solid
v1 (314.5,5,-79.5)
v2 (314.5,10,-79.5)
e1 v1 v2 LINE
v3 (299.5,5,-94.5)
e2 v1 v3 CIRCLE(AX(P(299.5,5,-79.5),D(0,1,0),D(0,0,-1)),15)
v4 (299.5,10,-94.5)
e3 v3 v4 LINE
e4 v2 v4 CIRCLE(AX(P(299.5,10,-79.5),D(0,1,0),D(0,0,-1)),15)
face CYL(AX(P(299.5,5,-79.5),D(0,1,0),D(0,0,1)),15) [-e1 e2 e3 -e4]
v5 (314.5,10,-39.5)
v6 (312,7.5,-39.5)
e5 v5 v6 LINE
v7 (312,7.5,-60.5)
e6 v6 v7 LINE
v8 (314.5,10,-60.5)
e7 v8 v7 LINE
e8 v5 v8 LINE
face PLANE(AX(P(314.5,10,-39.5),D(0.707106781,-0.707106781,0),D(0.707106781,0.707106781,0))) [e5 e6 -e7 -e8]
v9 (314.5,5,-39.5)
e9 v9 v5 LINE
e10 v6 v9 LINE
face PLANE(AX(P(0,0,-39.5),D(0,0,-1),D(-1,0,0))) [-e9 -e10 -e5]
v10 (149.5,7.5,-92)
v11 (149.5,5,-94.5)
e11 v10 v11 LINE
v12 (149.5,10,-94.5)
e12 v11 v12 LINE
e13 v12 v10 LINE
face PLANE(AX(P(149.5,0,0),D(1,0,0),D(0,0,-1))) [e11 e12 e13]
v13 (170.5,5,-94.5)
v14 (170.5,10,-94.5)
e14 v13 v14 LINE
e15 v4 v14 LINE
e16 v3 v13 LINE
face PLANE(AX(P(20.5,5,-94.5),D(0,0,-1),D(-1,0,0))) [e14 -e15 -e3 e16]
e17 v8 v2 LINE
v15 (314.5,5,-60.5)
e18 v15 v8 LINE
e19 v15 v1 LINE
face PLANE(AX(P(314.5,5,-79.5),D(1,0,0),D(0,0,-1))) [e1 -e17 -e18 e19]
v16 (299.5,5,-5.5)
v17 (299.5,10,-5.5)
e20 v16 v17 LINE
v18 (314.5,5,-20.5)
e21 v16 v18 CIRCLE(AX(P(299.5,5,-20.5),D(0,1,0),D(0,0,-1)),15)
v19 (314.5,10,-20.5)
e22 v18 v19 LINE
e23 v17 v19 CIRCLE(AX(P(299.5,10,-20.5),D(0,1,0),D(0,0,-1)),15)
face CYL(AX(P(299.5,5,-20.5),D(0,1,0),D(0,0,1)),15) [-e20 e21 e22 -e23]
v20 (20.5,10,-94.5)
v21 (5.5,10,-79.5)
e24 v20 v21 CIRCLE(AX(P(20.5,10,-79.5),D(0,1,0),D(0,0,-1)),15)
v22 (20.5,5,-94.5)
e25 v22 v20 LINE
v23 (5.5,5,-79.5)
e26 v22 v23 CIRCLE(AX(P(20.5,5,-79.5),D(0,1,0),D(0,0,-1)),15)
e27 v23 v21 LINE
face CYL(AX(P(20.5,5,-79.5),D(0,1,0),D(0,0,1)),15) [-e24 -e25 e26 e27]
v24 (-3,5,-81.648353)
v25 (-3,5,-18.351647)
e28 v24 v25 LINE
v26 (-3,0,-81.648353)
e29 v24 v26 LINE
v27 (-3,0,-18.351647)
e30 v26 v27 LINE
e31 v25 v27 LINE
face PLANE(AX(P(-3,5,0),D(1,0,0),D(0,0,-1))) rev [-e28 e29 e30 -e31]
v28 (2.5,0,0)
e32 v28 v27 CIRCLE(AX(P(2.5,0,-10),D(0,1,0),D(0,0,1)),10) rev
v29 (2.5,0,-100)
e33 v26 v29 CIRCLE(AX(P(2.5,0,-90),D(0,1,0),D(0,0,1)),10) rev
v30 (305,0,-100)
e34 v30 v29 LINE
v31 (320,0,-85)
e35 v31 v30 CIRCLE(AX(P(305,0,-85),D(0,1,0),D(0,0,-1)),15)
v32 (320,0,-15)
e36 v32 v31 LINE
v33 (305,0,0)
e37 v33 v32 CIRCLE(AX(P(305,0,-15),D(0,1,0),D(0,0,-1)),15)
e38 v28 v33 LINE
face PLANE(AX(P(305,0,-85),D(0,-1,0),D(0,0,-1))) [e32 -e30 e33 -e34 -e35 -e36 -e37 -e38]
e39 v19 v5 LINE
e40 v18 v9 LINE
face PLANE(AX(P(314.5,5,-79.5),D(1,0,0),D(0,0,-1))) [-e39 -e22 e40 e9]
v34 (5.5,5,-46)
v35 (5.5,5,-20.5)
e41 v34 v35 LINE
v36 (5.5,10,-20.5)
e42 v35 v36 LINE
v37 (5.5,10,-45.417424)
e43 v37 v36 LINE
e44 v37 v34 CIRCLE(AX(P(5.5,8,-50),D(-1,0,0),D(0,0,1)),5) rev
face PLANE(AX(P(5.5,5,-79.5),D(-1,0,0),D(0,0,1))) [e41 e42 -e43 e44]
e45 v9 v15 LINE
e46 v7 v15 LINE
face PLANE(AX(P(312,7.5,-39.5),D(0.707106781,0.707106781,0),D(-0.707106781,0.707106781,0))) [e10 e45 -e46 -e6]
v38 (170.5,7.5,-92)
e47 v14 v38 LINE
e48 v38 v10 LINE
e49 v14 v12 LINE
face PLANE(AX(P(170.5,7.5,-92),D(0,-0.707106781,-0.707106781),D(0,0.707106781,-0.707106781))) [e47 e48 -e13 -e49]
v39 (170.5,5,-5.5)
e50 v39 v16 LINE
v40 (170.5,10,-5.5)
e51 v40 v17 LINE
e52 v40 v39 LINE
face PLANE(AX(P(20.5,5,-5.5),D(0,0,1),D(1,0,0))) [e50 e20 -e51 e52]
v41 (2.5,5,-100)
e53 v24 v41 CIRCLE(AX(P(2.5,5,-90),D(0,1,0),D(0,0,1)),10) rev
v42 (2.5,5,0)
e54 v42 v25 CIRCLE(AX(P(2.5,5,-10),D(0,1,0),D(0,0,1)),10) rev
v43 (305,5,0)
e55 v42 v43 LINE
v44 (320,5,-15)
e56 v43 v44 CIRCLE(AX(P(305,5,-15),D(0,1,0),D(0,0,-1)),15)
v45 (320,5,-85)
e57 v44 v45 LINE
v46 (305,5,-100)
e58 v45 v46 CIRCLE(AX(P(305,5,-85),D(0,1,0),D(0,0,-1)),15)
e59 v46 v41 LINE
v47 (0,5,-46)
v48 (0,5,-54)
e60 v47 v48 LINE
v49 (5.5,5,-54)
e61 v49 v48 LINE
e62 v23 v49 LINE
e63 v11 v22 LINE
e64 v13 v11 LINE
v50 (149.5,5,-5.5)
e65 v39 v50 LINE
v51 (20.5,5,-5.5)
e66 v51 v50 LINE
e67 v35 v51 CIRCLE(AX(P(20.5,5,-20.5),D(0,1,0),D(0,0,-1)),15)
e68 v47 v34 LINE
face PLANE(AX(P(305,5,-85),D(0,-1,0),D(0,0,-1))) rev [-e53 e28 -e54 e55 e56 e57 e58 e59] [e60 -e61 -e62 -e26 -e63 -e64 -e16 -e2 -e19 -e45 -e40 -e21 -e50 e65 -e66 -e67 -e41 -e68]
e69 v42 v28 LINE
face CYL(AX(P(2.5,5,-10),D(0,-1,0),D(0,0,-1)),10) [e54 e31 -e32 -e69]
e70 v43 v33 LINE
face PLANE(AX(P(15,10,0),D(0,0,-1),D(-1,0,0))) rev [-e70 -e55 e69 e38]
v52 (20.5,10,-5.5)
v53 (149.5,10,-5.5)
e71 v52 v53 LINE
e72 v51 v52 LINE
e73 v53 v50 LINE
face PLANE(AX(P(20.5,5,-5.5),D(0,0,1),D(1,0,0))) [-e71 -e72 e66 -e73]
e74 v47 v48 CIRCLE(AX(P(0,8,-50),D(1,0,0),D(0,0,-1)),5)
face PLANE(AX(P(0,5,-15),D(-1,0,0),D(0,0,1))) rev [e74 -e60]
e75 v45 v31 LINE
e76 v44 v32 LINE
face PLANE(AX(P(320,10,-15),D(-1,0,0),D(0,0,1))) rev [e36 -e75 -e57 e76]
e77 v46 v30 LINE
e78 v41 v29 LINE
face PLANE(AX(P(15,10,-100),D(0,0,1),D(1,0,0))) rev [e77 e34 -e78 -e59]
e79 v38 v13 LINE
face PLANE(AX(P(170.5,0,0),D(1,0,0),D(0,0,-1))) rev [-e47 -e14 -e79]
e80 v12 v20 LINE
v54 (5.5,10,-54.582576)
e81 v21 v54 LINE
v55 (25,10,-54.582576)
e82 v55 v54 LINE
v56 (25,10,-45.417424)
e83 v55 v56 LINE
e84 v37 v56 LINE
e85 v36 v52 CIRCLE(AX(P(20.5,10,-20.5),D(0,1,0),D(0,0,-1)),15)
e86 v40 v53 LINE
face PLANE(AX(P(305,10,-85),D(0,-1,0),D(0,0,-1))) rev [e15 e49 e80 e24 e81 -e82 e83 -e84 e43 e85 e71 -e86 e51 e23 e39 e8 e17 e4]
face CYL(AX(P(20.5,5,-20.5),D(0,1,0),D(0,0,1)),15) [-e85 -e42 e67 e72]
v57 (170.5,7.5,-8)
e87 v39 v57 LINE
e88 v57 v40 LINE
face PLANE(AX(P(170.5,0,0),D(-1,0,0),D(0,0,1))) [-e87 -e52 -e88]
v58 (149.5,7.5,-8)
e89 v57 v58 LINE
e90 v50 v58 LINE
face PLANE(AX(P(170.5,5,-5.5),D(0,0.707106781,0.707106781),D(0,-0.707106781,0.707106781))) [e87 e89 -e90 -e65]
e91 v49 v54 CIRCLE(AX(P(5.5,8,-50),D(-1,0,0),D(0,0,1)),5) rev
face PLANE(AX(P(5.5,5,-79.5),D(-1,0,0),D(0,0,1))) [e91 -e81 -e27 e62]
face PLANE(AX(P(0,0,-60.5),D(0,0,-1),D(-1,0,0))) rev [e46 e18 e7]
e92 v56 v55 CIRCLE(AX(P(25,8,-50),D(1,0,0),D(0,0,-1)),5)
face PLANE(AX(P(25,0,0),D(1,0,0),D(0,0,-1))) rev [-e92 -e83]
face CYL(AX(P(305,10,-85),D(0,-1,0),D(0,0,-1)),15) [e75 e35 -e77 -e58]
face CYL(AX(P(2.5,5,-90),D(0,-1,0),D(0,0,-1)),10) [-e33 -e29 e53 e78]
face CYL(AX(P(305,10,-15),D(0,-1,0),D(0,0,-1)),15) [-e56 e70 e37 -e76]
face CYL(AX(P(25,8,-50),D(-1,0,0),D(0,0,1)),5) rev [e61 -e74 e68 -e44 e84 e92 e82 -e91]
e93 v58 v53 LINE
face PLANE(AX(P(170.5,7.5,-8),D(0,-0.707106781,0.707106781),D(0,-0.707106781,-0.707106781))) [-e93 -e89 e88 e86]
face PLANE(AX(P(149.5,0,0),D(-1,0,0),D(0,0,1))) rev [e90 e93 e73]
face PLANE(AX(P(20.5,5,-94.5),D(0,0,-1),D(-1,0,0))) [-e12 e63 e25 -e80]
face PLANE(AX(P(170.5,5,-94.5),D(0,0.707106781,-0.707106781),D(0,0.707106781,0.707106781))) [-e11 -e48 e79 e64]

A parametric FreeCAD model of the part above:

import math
import FreeCAD as App
import Part
import Sketcher


def add_polygon(sketch, points):
    """Adds a closed chain of lines whose ends are joined by coincident constraints."""
    first, n = sketch.GeometryCount, len(points)
    for a, b in zip(points, points[1:] + points[:1]):
        sketch.addGeometry(Part.LineSegment(App.Vector(*a, 0), App.Vector(*b, 0)), False)
    for i in range(n):
        sketch.addConstraint(Sketcher.Constraint("Coincident", first + i, 2, first + (i + 1) % n, 1))

doc = App.newDocument("Part")
body = doc.addObject("PartDesign::Body", "Body")

# Sketch on XZ plane
sketch1 = doc.addObject("Sketcher::SketchObject", "Sketch")
body.addObject(sketch1)
sketch1.AttachmentSupport = (doc.XZ_Plane, [""])
sketch1.MapMode = "FlatFace"
sketch1.addGeometry([
    Part.LineSegment(App.Vector(15, 0, 0), App.Vector(305, 0, 0)),  # 0
    Part.ArcOfCircle(Part.Circle(App.Vector(305, -15, 0), App.Vector(0, 0, 1), 15), math.radians(0), math.radians(90)),  # 1
    Part.LineSegment(App.Vector(320, -15, 0), App.Vector(320, -85, 0)),  # 2
    Part.ArcOfCircle(Part.Circle(App.Vector(305, -85, 0), App.Vector(0, 0, 1), 15), math.radians(-90), math.radians(0)),  # 3
    Part.LineSegment(App.Vector(305, -100, 0), App.Vector(15, -100, 0)),  # 4
    Part.ArcOfCircle(Part.Circle(App.Vector(15, -85, 0), App.Vector(0, 0, 1), 15), math.radians(180), math.radians(270)),  # 5
    Part.LineSegment(App.Vector(0, -85, 0), App.Vector(0, -15, 0)),  # 6
    Part.ArcOfCircle(Part.Circle(App.Vector(15, -15, 0), App.Vector(0, 0, 1), 15), math.radians(90), math.radians(180)),  # 7
], False)
sketch1.addConstraint([
    Sketcher.Constraint("Tangent", 0, 2, 1, 2),
    Sketcher.Constraint("Tangent", 1, 1, 2, 1),
    Sketcher.Constraint("Tangent", 2, 2, 3, 2),
    Sketcher.Constraint("Tangent", 3, 1, 4, 1),
    Sketcher.Constraint("Tangent", 4, 2, 5, 2),
    Sketcher.Constraint("Tangent", 5, 1, 6, 1),
    Sketcher.Constraint("Tangent", 6, 2, 7, 2),
    Sketcher.Constraint("Tangent", 7, 1, 0, 1),
    Sketcher.Constraint("Horizontal", 0),
    Sketcher.Constraint("Vertical", 2),
    Sketcher.Constraint("Horizontal", 4),
    Sketcher.Constraint("Vertical", 6),
    Sketcher.Constraint("Equal", 1, 3),
    Sketcher.Constraint("Equal", 3, 5),
    Sketcher.Constraint("Equal", 5, 7),
    Sketcher.Constraint("PointOnObject", 0, 2, -1),
    Sketcher.Constraint("PointOnObject", 5, 1, -2),
    Sketcher.Constraint("Radius", 1, 15.0),
    Sketcher.Constraint("DistanceX", 0, 1, 0, 2, 290.0),
    Sketcher.Constraint("DistanceY", 2, 2, 2, 1, 70.0),
])
pad1 = doc.addObject("PartDesign::Pad", "Pad")
body.addObject(pad1)
pad1.Profile = sketch1
pad1.Length = 10
pad1.Reversed = True

# Sketch on XZ plane
sketch2 = doc.addObject("Sketcher::SketchObject", "Sketch001")
body.addObject(sketch2)
sketch2.AttachmentSupport = (doc.XZ_Plane, [""])
sketch2.MapMode = "FlatFace"
sketch2.AttachmentOffset = App.Placement(App.Vector(0, 0, -5), App.Rotation())
sketch2.addGeometry([
    Part.LineSegment(App.Vector(15, 0, 0), App.Vector(305, 0, 0)),  # 0
    Part.ArcOfCircle(Part.Circle(App.Vector(305, -15, 0), App.Vector(0, 0, 1), 15), math.radians(0), math.radians(90)),  # 1
    Part.LineSegment(App.Vector(320, -15, 0), App.Vector(320, -85, 0)),  # 2
    Part.ArcOfCircle(Part.Circle(App.Vector(305, -85, 0), App.Vector(0, 0, 1), 15), math.radians(-90), math.radians(0)),  # 3
    Part.LineSegment(App.Vector(305, -100, 0), App.Vector(15, -100, 0)),  # 4
    Part.ArcOfCircle(Part.Circle(App.Vector(15, -85, 0), App.Vector(0, 0, 1), 15), math.radians(180), math.radians(270)),  # 5
    Part.LineSegment(App.Vector(0, -85, 0), App.Vector(0, -15, 0)),  # 6
    Part.ArcOfCircle(Part.Circle(App.Vector(15, -15, 0), App.Vector(0, 0, 1), 15), math.radians(90), math.radians(180)),  # 7
    Part.ArcOfCircle(Part.Circle(App.Vector(20, -80, 0), App.Vector(0, 0, 1), 15), math.radians(180), math.radians(270)),  # 8
    Part.LineSegment(App.Vector(20, -94, 0), App.Vector(300, -94, 0)),  # 9
    Part.ArcOfCircle(Part.Circle(App.Vector(300, -80, 0), App.Vector(0, 0, 1), 15), math.radians(-90), math.radians(0)),  # 10
    Part.LineSegment(App.Vector(314, -80, 0), App.Vector(314, -20, 0)),  # 11
    Part.ArcOfCircle(Part.Circle(App.Vector(300, -20, 0), App.Vector(0, 0, 1), 15), math.radians(0), math.radians(90)),  # 12
    Part.LineSegment(App.Vector(300, -6, 0), App.Vector(20, -6, 0)),  # 13
    Part.ArcOfCircle(Part.Circle(App.Vector(20, -20, 0), App.Vector(0, 0, 1), 15), math.radians(90), math.radians(180)),  # 14
    Part.LineSegment(App.Vector(6, -20, 0), App.Vector(6, -80, 0)),  # 15
], False)
sketch2.addConstraint([
    Sketcher.Constraint("Tangent", 0, 2, 1, 2),
    Sketcher.Constraint("Tangent", 1, 1, 2, 1),
    Sketcher.Constraint("Tangent", 2, 2, 3, 2),
    Sketcher.Constraint("Tangent", 3, 1, 4, 1),
    Sketcher.Constraint("Tangent", 4, 2, 5, 2),
    Sketcher.Constraint("Tangent", 5, 1, 6, 1),
    Sketcher.Constraint("Tangent", 6, 2, 7, 2),
    Sketcher.Constraint("Tangent", 7, 1, 0, 1),
    Sketcher.Constraint("Tangent", 8, 2, 9, 1),
    Sketcher.Constraint("Tangent", 9, 2, 10, 1),
    Sketcher.Constraint("Tangent", 10, 2, 11, 1),
    Sketcher.Constraint("Tangent", 11, 2, 12, 1),
    Sketcher.Constraint("Tangent", 12, 2, 13, 1),
    Sketcher.Constraint("Tangent", 13, 2, 14, 1),
    Sketcher.Constraint("Tangent", 14, 2, 15, 1),
    Sketcher.Constraint("Tangent", 15, 2, 8, 1),
    Sketcher.Constraint("Horizontal", 0),
    Sketcher.Constraint("Vertical", 2),
    Sketcher.Constraint("Horizontal", 4),
    Sketcher.Constraint("Vertical", 6),
    Sketcher.Constraint("Horizontal", 9),
    Sketcher.Constraint("Vertical", 11),
    Sketcher.Constraint("Horizontal", 13),
    Sketcher.Constraint("Vertical", 15),
    Sketcher.Constraint("Equal", 1, 3),
    Sketcher.Constraint("Equal", 3, 5),
    Sketcher.Constraint("Equal", 5, 7),
    Sketcher.Constraint("Equal", 7, 8),
    Sketcher.Constraint("Equal", 8, 10),
    Sketcher.Constraint("Equal", 10, 12),
    Sketcher.Constraint("Equal", 12, 14),
    Sketcher.Constraint("PointOnObject", 0, 2, -1),
    Sketcher.Constraint("PointOnObject", 5, 1, -2),
    Sketcher.Constraint("Radius", 1, 15.0),
    Sketcher.Constraint("DistanceX", 0, 1, 0, 2, 290.0),
    Sketcher.Constraint("DistanceX", 9, 1, 9, 2, 279.0),
    Sketcher.Constraint("DistanceY", 2, 2, 2, 1, 70.0),
    Sketcher.Constraint("DistanceY", 11, 1, 11, 2, 59.0),
    Sketcher.Constraint("DistanceX", -1, 1, 8, 3, 20.5),
    Sketcher.Constraint("DistanceY", 8, 3, -1, 1, 79.5),
])
pocket1 = doc.addObject("PartDesign::Pocket", "Pocket")
body.addObject(pocket1)
pocket1.Profile = sketch2
pocket1.Length = 5

# Sketch on YZ plane
sketch3 = doc.addObject("Sketcher::SketchObject", "Sketch002")
body.addObject(sketch3)
sketch3.AttachmentSupport = (doc.YZ_Plane, [""])
sketch3.MapMode = "FlatFace"
sketch3.AttachmentOffset = App.Placement(App.Vector(0, 0, 160), App.Rotation())
add_polygon(sketch3, [(10, -5.5), (5, -5.5), (7.5, -8)])  # lines 0-2
add_polygon(sketch3, [(5, -94.5), (10, -94.5), (7.5, -92)])  # lines 3-5
sketch3.addConstraint([
    Sketcher.Constraint("Horizontal", 0),
    Sketcher.Constraint("Horizontal", 3),
    Sketcher.Constraint("Perpendicular", 1, 2),
    Sketcher.Constraint("Perpendicular", 2, 4),
    Sketcher.Constraint("Perpendicular", 4, 5),
    Sketcher.Constraint("Vertical", 2, 2, 3, 2),
    Sketcher.Constraint("Vertical", 1, 2, 4, 2),
    Sketcher.Constraint("Vertical", 0, 2, 5, 2),
    Sketcher.Constraint("DistanceX", 0, 2, 0, 1, 5.0),
    Sketcher.Constraint("DistanceX", -1, 1, 0, 2, 5.0),
    Sketcher.Constraint("DistanceY", 1, 2, -1, 1, 8.0),
    Sketcher.Constraint("DistanceY", 4, 2, -1, 1, 92.0),
])
pocket2 = doc.addObject("PartDesign::Pocket", "Pocket001")
body.addObject(pocket2)
pocket2.Profile = sketch3
pocket2.Type = "TwoLengths"
pocket2.Length = 10.5
pocket2.Length2 = 10.5
pocket2.Reversed = True

# Sketch on XY plane
sketch4 = doc.addObject("Sketcher::SketchObject", "Sketch003")
body.addObject(sketch4)
sketch4.AttachmentSupport = (doc.XY_Plane, [""])
sketch4.MapMode = "FlatFace"
sketch4.AttachmentOffset = App.Placement(App.Vector(0, 0, -50), App.Rotation())
add_polygon(sketch4, [(314.5, 5), (314.5, 10), (312, 7.5)])  # lines 0-2
sketch4.addConstraint([
    Sketcher.Constraint("Vertical", 0),
    Sketcher.Constraint("Perpendicular", 1, 2),
    Sketcher.Constraint("Equal", 1, 2),
    Sketcher.Constraint("DistanceY", 0, 1, 0, 2, 5.0),
    Sketcher.Constraint("DistanceY", -1, 1, 0, 2, 10.0),
    Sketcher.Constraint("DistanceX", -1, 1, 1, 2, 312.0),
])
pocket3 = doc.addObject("PartDesign::Pocket", "Pocket002")
body.addObject(pocket3)
pocket3.Profile = sketch4
pocket3.Type = "TwoLengths"
pocket3.Length = 10.5
pocket3.Length2 = 10.5
pocket3.Reversed = True

# Sketch on YZ plane
sketch5 = doc.addObject("Sketcher::SketchObject", "Sketch004")
body.addObject(sketch5)
sketch5.AttachmentSupport = (doc.YZ_Plane, [""])
sketch5.MapMode = "FlatFace"
sketch5.addGeometry(Part.Circle(App.Vector(8, -50, 0), App.Vector(0, 0, 1), 5), False)
sketch5.addConstraint([
    Sketcher.Constraint("Diameter", 0, 10.0),
    Sketcher.Constraint("DistanceX", -1, 1, 0, 3, 8.0),
    Sketcher.Constraint("DistanceY", 0, 3, -1, 1, 50.0),
])
pocket4 = doc.addObject("PartDesign::Pocket", "Pocket003")
body.addObject(pocket4)
pocket4.Profile = sketch5
pocket4.Length = 25
pocket4.Reversed = True

# Sketch on XZ plane
sketch6 = doc.addObject("Sketcher::SketchObject", "Sketch005")
body.addObject(sketch6)
sketch6.AttachmentSupport = (doc.XZ_Plane, [""])
sketch6.MapMode = "FlatFace"
sketch6.addGeometry([
    Part.LineSegment(App.Vector(-8, -100, 0), App.Vector(-8, 0, 0)),  # 0
    Part.LineSegment(App.Vector(-8, 0, 0), App.Vector(15, 0, 0)),  # 1
    Part.ArcOfCircle(Part.Circle(App.Vector(15, -15, 0), App.Vector(0, 0, 1), 15), math.radians(90), math.radians(180)),  # 2
    Part.LineSegment(App.Vector(0, -15, 0), App.Vector(0, -85, 0)),  # 3
    Part.ArcOfCircle(Part.Circle(App.Vector(15, -85, 0), App.Vector(0, 0, 1), 15), math.radians(180), math.radians(270)),  # 4
    Part.LineSegment(App.Vector(15, -100, 0), App.Vector(-8, -100, 0)),  # 5
], False)
sketch6.addConstraint([
    Sketcher.Constraint("Coincident", 0, 2, 1, 1),
    Sketcher.Constraint("Tangent", 1, 2, 2, 1),
    Sketcher.Constraint("Tangent", 2, 2, 3, 1),
    Sketcher.Constraint("Tangent", 3, 2, 4, 1),
    Sketcher.Constraint("Tangent", 4, 2, 5, 1),
    Sketcher.Constraint("Coincident", 5, 2, 0, 1),
    Sketcher.Constraint("Vertical", 0),
    Sketcher.Constraint("Horizontal", 1),
    Sketcher.Constraint("Vertical", 3),
    Sketcher.Constraint("Horizontal", 5),
    Sketcher.Constraint("Equal", 2, 4),
    Sketcher.Constraint("PointOnObject", 0, 2, -1),
    Sketcher.Constraint("PointOnObject", 2, 2, -2),
    Sketcher.Constraint("Radius", 2, 15.0),
    Sketcher.Constraint("DistanceY", 0, 1, 0, 2, 100.0),
    Sketcher.Constraint("DistanceX", 1, 1, 1, 2, 22.5),
])
pad2 = doc.addObject("PartDesign::Pad", "Pad001")
body.addObject(pad2)
pad2.Profile = sketch6
pad2.Length = 5
pad2.Reversed = True

# Sketch on XZ plane
sketch7 = doc.addObject("Sketcher::SketchObject", "Sketch006")
body.addObject(sketch7)
sketch7.AttachmentSupport = (doc.XZ_Plane, [""])
sketch7.MapMode = "FlatFace"
sketch7.addGeometry([
    Part.LineSegment(App.Vector(-8, 0, 0), App.Vector(2, 0, 0)),  # 0
    Part.ArcOfCircle(Part.Circle(App.Vector(2, -10, 0), App.Vector(0, 0, 1), 10), math.radians(90), math.radians(180)),  # 1
    Part.LineSegment(App.Vector(-8, -10, 0), App.Vector(-8, 0, 0)),  # 2
    Part.ArcOfCircle(Part.Circle(App.Vector(2, -90, 0), App.Vector(0, 0, 1), 10), math.radians(123), math.radians(180)),  # 3
    Part.LineSegment(App.Vector(-8, -90, 0), App.Vector(-8, -10, 0)),  # 4
    Part.ArcOfCircle(Part.Circle(App.Vector(2, -10, 0), App.Vector(0, 0, 1), 10), math.radians(180), math.radians(237)),  # 5
    Part.LineSegment(App.Vector(-3, -18, 0), App.Vector(-3, -82, 0)),  # 6
    Part.LineSegment(App.Vector(-8, -100, 0), App.Vector(-8, -90, 0)),  # 7
    Part.ArcOfCircle(Part.Circle(App.Vector(2, -90, 0), App.Vector(0, 0, 1), 10), math.radians(180), math.radians(270)),  # 8
    Part.LineSegment(App.Vector(2, -100, 0), App.Vector(-8, -100, 0)),  # 9
], False)
sketch7.addConstraint([
    Sketcher.Constraint("Tangent", 0, 2, 1, 1),
    Sketcher.Constraint("Tangent", 1, 2, 2, 1),
    Sketcher.Constraint("Coincident", 2, 2, 0, 1),
    Sketcher.Constraint("Tangent", 3, 2, 4, 1),
    Sketcher.Constraint("Tangent", 4, 2, 5, 1),
    Sketcher.Constraint("Coincident", 5, 2, 6, 1),
    Sketcher.Constraint("Coincident", 6, 2, 3, 1),
    Sketcher.Constraint("Tangent", 7, 2, 8, 1),
    Sketcher.Constraint("Tangent", 8, 2, 9, 1),
    Sketcher.Constraint("Coincident", 9, 2, 7, 1),
    Sketcher.Constraint("Horizontal", 0),
    Sketcher.Constraint("Vertical", 2),
    Sketcher.Constraint("Vertical", 4),
    Sketcher.Constraint("Vertical", 6),
    Sketcher.Constraint("Vertical", 7),
    Sketcher.Constraint("Horizontal", 9),
    Sketcher.Constraint("Coincident", 5, 3, 1, 3),
    Sketcher.Constraint("Coincident", 8, 3, 3, 3),
    Sketcher.Constraint("Equal", 1, 3),
    Sketcher.Constraint("Equal", 3, 5),
    Sketcher.Constraint("Equal", 5, 8),
    Sketcher.Constraint("PointOnObject", 0, 2, -1),
    Sketcher.Constraint("Radius", 1, 10.0),
    Sketcher.Constraint("DistanceY", 4, 1, 4, 2, 80.0),
    Sketcher.Constraint("DistanceX", 5, 2, -1, 1, 3.0),
    Sketcher.Constraint("DistanceX", -1, 1, 1, 3, 2.5),
])
pocket5 = doc.addObject("PartDesign::Pocket", "Pocket004")
body.addObject(pocket5)
pocket5.Profile = sketch7
pocket5.Length = 5

doc.recompute()
